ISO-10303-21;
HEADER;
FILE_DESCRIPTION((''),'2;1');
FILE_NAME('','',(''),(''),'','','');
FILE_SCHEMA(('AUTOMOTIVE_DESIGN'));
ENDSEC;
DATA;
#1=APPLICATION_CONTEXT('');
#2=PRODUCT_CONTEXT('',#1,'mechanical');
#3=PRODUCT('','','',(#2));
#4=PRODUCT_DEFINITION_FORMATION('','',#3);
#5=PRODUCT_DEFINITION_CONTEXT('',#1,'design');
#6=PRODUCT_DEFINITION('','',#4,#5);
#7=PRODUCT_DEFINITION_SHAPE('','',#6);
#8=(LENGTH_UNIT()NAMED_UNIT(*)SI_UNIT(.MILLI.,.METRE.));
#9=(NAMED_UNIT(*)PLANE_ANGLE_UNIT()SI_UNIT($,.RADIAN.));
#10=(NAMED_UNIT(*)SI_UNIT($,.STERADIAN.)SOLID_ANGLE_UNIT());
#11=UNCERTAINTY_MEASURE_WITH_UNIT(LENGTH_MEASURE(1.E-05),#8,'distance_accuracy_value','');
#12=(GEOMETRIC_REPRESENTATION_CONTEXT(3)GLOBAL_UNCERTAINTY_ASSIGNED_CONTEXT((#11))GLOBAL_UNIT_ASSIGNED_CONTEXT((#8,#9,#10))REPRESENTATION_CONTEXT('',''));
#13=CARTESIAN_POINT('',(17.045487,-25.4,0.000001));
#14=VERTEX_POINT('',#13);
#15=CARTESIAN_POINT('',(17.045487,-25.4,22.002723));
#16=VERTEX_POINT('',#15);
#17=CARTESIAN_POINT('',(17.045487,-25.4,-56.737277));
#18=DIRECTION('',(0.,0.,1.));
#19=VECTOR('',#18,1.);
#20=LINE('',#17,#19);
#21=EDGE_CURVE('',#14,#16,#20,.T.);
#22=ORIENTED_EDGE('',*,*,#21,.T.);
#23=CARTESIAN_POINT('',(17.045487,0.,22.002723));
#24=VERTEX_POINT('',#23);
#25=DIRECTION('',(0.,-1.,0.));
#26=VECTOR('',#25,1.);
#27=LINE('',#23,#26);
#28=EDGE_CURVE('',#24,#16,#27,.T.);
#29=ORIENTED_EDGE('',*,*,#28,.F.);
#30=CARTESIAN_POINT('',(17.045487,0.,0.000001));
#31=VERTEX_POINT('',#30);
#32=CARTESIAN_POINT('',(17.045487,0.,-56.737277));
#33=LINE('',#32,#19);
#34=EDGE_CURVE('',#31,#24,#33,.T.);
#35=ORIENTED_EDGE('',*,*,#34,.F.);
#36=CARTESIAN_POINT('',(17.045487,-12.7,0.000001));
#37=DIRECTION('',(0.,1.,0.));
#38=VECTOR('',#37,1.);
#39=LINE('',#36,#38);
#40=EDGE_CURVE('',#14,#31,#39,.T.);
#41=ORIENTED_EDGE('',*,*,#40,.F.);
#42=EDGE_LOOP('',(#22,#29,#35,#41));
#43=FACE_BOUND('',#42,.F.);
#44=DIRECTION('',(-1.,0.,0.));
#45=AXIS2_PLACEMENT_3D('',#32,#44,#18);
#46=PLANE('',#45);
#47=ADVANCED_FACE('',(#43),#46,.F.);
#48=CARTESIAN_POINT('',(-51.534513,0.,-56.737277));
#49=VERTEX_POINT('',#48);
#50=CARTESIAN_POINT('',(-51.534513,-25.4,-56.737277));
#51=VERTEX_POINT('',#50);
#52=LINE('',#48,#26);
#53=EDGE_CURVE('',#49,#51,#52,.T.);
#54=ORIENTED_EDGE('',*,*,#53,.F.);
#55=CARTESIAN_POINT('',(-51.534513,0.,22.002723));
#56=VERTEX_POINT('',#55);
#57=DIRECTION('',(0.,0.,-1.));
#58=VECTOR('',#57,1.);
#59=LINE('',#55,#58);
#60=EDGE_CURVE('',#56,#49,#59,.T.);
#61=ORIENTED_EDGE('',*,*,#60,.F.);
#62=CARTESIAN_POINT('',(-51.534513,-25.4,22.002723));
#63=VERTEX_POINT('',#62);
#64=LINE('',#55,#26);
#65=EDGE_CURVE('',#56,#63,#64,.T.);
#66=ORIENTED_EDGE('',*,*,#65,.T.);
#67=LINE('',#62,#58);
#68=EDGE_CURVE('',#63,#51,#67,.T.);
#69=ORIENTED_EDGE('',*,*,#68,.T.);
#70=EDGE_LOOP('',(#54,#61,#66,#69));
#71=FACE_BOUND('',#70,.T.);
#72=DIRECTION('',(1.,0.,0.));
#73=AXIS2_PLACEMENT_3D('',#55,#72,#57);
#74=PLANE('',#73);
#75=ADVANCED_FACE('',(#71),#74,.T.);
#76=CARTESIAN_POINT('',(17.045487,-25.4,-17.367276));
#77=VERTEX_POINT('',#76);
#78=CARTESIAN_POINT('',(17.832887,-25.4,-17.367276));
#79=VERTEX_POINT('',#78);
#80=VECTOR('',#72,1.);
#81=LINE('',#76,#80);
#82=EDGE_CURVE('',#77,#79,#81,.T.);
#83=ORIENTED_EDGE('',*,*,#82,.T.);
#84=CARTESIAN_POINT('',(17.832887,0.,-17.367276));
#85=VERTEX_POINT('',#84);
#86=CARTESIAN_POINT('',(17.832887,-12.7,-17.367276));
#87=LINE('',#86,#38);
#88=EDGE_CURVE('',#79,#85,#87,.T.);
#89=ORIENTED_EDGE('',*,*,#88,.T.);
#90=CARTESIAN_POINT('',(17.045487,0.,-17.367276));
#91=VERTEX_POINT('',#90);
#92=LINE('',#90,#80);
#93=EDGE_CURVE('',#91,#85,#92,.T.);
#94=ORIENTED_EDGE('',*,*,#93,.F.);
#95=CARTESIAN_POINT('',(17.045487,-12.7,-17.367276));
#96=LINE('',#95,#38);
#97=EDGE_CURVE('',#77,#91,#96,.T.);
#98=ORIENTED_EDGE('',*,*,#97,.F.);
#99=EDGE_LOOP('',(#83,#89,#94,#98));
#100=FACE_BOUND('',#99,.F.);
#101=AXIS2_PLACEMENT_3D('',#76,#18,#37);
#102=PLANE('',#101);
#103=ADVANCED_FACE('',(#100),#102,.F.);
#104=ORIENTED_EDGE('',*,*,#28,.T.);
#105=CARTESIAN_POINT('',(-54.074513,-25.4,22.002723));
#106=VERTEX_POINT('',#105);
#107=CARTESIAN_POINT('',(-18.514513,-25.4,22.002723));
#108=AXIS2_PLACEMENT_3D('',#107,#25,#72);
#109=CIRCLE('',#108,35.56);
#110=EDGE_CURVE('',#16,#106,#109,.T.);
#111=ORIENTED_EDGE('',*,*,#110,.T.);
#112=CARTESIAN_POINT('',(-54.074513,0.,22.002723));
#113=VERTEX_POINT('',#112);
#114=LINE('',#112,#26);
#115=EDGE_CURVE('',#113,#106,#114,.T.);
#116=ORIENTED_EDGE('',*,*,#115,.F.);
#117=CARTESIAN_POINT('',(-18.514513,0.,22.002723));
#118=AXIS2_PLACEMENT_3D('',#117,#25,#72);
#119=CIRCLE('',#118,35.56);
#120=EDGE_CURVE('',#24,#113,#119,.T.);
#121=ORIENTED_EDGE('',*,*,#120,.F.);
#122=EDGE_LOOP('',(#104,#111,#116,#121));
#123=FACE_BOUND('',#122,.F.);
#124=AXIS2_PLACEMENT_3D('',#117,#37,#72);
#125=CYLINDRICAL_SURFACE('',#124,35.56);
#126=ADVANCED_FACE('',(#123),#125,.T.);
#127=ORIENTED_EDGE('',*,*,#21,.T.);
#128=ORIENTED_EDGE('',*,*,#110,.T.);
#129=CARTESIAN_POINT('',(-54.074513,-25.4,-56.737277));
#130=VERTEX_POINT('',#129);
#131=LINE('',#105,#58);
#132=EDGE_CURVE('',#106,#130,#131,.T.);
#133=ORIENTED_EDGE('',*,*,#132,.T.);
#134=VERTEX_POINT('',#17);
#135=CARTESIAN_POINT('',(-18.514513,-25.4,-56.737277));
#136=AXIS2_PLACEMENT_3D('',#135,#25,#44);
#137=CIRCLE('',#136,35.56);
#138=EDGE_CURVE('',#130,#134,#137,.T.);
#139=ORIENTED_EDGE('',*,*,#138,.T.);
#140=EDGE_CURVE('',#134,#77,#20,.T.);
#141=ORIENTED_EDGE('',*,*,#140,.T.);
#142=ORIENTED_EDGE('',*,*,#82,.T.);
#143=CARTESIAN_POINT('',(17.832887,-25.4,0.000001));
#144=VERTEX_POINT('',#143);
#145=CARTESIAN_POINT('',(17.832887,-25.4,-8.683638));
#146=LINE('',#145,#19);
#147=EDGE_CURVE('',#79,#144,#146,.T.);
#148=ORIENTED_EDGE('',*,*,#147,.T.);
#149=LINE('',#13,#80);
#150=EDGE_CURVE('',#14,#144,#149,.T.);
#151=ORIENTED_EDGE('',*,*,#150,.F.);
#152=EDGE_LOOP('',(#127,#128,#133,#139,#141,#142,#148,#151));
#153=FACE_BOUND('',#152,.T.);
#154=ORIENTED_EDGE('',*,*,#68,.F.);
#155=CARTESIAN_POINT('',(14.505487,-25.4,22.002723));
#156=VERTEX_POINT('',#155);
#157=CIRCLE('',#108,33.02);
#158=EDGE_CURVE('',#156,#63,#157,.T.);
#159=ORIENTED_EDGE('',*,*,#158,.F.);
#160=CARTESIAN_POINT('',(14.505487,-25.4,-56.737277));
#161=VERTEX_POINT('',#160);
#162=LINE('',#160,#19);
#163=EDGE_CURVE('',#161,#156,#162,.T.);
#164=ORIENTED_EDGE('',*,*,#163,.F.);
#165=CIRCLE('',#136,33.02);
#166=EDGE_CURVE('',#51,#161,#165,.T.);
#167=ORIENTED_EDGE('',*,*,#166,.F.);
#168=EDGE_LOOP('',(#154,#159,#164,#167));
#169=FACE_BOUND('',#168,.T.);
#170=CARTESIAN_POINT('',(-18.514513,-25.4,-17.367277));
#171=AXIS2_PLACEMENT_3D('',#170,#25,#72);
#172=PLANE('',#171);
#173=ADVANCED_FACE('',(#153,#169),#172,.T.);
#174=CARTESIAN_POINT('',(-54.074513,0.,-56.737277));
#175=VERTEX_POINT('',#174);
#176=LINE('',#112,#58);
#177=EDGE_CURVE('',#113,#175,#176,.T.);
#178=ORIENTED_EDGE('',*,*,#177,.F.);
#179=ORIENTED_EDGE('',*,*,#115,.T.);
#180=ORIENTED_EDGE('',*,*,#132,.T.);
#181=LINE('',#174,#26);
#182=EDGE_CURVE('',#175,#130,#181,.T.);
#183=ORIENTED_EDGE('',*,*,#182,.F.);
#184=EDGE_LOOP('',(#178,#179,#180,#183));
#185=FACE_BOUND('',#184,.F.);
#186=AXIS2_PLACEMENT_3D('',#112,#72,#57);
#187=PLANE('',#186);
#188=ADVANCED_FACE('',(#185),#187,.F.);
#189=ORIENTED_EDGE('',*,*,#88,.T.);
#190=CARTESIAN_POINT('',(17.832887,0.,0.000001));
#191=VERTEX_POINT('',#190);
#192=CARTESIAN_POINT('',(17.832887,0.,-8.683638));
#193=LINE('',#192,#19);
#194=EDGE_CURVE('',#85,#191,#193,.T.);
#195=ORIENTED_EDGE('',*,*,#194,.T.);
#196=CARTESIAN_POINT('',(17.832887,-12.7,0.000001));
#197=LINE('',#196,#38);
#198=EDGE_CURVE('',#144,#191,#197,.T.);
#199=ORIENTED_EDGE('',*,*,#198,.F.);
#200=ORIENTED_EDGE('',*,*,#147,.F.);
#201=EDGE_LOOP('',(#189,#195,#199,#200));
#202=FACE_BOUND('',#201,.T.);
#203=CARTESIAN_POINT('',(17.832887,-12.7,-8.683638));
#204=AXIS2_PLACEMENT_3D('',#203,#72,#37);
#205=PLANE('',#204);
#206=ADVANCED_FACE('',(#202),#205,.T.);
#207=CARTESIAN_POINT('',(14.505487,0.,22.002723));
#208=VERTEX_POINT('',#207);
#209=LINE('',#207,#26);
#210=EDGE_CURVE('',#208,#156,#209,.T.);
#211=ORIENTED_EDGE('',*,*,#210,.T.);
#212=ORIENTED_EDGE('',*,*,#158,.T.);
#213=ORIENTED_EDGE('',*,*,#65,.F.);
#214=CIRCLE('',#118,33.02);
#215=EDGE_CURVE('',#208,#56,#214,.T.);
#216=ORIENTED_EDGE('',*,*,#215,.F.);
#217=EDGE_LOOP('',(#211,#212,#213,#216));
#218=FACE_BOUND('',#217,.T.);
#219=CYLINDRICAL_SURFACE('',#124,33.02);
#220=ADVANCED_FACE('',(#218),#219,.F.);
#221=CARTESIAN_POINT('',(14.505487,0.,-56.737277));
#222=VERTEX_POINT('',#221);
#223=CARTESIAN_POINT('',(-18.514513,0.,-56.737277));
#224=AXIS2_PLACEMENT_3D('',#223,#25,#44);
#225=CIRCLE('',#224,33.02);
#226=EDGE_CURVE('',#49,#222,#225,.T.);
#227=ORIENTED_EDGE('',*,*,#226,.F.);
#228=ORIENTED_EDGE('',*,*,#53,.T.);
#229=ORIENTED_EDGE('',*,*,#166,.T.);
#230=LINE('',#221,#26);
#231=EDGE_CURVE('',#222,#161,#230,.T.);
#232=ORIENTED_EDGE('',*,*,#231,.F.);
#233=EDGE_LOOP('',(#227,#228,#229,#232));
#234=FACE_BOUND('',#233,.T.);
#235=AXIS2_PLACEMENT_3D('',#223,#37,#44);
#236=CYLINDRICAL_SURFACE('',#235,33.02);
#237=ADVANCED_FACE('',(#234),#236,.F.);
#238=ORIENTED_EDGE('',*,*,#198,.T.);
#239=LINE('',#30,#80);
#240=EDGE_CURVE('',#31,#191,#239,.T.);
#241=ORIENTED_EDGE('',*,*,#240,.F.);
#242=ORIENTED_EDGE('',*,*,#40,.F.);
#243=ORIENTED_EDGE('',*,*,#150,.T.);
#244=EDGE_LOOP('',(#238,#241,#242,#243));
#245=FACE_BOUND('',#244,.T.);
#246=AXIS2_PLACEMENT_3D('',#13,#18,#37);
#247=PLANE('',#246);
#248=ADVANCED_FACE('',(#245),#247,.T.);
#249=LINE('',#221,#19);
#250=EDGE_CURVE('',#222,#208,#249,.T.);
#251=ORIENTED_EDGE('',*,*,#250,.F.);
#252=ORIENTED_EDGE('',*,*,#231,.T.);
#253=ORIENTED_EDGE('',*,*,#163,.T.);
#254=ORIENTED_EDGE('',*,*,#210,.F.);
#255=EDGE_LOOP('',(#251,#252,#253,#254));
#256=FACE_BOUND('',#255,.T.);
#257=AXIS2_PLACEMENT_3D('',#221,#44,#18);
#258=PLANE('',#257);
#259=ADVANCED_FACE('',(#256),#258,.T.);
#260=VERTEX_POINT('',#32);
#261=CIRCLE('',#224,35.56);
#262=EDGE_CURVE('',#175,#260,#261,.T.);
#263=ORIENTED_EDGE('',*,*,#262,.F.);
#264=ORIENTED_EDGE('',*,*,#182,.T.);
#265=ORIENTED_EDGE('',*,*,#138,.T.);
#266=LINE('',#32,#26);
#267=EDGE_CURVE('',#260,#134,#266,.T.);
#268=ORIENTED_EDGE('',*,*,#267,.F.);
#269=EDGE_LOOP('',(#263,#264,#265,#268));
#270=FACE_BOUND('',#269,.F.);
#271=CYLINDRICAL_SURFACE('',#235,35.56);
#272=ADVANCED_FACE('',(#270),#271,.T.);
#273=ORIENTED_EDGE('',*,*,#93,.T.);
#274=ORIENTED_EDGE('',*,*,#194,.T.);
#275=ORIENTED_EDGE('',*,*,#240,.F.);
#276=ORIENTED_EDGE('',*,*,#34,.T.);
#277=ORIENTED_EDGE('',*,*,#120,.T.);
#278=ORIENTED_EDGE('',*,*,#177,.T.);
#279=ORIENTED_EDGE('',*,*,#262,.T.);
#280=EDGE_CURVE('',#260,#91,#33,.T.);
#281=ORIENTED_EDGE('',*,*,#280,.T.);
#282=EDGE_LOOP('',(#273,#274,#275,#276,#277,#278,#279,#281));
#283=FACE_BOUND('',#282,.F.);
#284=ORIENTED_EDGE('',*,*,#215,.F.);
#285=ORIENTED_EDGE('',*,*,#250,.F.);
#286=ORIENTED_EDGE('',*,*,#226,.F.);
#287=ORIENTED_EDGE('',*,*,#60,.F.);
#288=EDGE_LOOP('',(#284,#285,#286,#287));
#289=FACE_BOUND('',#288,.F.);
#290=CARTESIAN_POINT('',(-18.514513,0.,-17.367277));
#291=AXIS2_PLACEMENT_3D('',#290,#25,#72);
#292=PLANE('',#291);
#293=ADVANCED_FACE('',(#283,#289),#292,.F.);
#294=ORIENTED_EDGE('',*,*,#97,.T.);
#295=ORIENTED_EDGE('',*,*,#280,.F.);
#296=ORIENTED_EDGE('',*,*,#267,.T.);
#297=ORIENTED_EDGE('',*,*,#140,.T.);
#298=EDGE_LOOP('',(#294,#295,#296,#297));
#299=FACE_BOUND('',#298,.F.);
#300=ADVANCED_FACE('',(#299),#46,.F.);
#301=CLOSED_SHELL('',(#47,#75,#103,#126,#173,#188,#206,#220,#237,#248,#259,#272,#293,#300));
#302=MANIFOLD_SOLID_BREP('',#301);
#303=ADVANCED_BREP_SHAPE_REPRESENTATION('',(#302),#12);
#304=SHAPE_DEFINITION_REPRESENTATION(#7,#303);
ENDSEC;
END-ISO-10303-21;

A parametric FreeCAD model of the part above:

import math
import FreeCAD as App
import Part
import Sketcher
Q = App.Units.Quantity


def faces_at(feature, points):
    """Names of the faces that lie closest to the given points."""
    faces = feature.Shape.Faces
    near = lambda p: min(range(len(faces)), key=lambda i: faces[i].distToShape(Part.Vertex(*p))[0])
    return sorted({f"Face{near(p) + 1}" for p in points})

doc = App.newDocument("Part")
body = doc.addObject("PartDesign::Body", "Body")

sketch1 = body.newObject("Sketcher::SketchObject", "Sketch")
sketch1.AttachmentSupport = (doc.getObject("XZ_Plane"), [""])
sketch1.MapMode = "FlatFace"
sketch1.addGeometry([
    Part.ArcOfCircle(Part.Circle(App.Vector(-19, 22, 0), App.Vector(0, 0, 1), 36), math.radians(0), math.radians(180)),
    Part.LineSegment(App.Vector(-54, 22, 0), App.Vector(-54, -57, 0)),
    Part.ArcOfCircle(Part.Circle(App.Vector(-19, -57, 0), App.Vector(0, 0, 1), 36), math.radians(180), math.radians(360)),
    Part.LineSegment(App.Vector(17, -57, 0), App.Vector(17, 22, 0)),
], False)
sketch1.addConstraint([
    Sketcher.Constraint("Tangent", 0, 2, 1, 1),
    Sketcher.Constraint("Tangent", 1, 2, 2, 1),
    Sketcher.Constraint("Tangent", 2, 2, 3, 1),
    Sketcher.Constraint("Tangent", 3, 2, 0, 1),
    Sketcher.Constraint("Vertical", 1),
    Sketcher.Constraint("Vertical", 3),
    Sketcher.Constraint("Radius", 0, Q("1.4 in")),
    Sketcher.Constraint("DistanceY", 1, 2, 1, 1, Q("3.1 in")),
    Sketcher.Constraint("DistanceX", 0, 3, -1, 1, 18.514513),
    Sketcher.Constraint("DistanceY", -1, 1, 0, 3, 22.002723),
])
pad1 = body.newObject("PartDesign::Pad", "Pad")
pad1.Profile = sketch1
pad1.Length = Q("1 in")
doc.recompute()

thickness = body.newObject("PartDesign::Thickness", "Thickness")
thickness.Base = (pad1, faces_at(pad1, [(-18.515, -25.4, -17.367), (-18.515, 0, -17.367)]))
thickness.Value = Q("0.1 in")
thickness.Reversed = True
thickness.Join = "Arc"

sketch2 = body.newObject("Sketcher::SketchObject", "Sketch001")
sketch2.AttachmentSupport = (doc.getObject("YZ_Plane"), [""])
sketch2.MapMode = "FlatFace"
sketch2.AttachmentOffset = App.Placement(App.Vector(0, 0, 17.045487), App.Rotation())
sketch2.addGeometry([
    Part.LineSegment(App.Vector(-25, 0, 0), App.Vector(-25, -17, 0)),
    Part.LineSegment(App.Vector(-25, -17, 0), App.Vector(0, -17, 0)),
    Part.LineSegment(App.Vector(0, -17, 0), App.Vector(0, 0, 0)),
    Part.LineSegment(App.Vector(0, 0, 0), App.Vector(-25, 0, 0)),
], False)
sketch2.addConstraint([
    Sketcher.Constraint("Coincident", 0, 2, 1, 1),
    Sketcher.Constraint("Coincident", 1, 2, 2, 1),
    Sketcher.Constraint("Coincident", 2, 2, 3, 1),
    Sketcher.Constraint("Coincident", 3, 2, 0, 1),
    Sketcher.Constraint("Vertical", 0),
    Sketcher.Constraint("Horizontal", 1),
    Sketcher.Constraint("Vertical", 2),
    Sketcher.Constraint("Horizontal", 3),
    Sketcher.Constraint("Coincident", 2, 2, -1, 1),
    Sketcher.Constraint("DistanceX", 1, 1, 1, 2, Q("1 in")),
    Sketcher.Constraint("DistanceY", 0, 2, 0, 1, 17.367277),
])
pad2 = body.newObject("PartDesign::Pad", "Pad001")
pad2.Profile = sketch2
pad2.Length = Q("0.031 in")

doc.recompute()
